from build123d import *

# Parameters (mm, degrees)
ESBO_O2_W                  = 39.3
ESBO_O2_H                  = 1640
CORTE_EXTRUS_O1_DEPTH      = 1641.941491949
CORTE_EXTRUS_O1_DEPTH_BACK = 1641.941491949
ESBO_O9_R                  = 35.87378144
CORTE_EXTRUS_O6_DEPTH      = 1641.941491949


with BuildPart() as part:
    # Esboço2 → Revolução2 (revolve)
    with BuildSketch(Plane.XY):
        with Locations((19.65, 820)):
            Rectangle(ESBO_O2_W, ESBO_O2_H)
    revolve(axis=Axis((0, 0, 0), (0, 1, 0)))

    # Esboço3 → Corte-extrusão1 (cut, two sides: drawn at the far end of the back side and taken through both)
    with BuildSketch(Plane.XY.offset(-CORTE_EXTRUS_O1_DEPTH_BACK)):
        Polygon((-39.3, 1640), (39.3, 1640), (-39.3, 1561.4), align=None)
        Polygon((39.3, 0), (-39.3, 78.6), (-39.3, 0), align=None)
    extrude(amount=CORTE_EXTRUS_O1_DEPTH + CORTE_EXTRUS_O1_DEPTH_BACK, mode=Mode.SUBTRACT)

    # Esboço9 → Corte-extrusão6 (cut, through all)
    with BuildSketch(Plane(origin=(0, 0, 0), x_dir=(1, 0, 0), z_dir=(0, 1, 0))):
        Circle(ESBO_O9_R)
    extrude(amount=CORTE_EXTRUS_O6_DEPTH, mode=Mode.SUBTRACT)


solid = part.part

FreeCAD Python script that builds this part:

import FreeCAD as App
import Part
import Sketcher

doc = App.newDocument("Part")
body = doc.addObject("PartDesign::Body", "Body")

# Sketch on XY plane
sketch1 = doc.addObject("Sketcher::SketchObject", "Sketch")
body.addObject(sketch1)
sketch1.AttachmentSupport = (doc.XY_Plane, [""])
sketch1.MapMode = "FlatFace"
sketch1.addGeometry([
    Part.LineSegment(App.Vector(0, 1640, 0), App.Vector(0, 0, 0)),
    Part.LineSegment(App.Vector(0, 0, 0), App.Vector(39.3, 0, 0)),
    Part.LineSegment(App.Vector(39.3, 0, 0), App.Vector(39.3, 1640, 0)),
    Part.LineSegment(App.Vector(39.3, 1640, 0), App.Vector(0, 1640, 0)),
], False)
sketch1.addConstraint([
    Sketcher.Constraint("Coincident", 0, 2, 1, 1),
    Sketcher.Constraint("Coincident", 1, 2, 2, 1),
    Sketcher.Constraint("Coincident", 2, 2, 3, 1),
    Sketcher.Constraint("Coincident", 3, 2, 0, 1),
    Sketcher.Constraint("Vertical", 0),
    Sketcher.Constraint("Horizontal", 1),
    Sketcher.Constraint("Vertical", 2),
    Sketcher.Constraint("Horizontal", 3),
    Sketcher.Constraint("Coincident", 0, 2, -1, 1),
    Sketcher.Constraint("DistanceY", 0, 2, 0, 1, 1640.0),
    Sketcher.Constraint("DistanceX", 1, 1, 1, 2, 39.3),
])
revolution = doc.addObject("PartDesign::Revolution", "Revolution")
body.addObject(revolution)
revolution.Profile = sketch1
revolution.ReferenceAxis = (sketch1, ["V_Axis"])
revolution.Angle = 360

# Sketch on XY plane
sketch2 = doc.addObject("Sketcher::SketchObject", "Sketch001")
body.addObject(sketch2)
sketch2.AttachmentSupport = (doc.XY_Plane, [""])
sketch2.MapMode = "FlatFace"
sketch2.addGeometry([
    Part.LineSegment(App.Vector(39.3, 1640, 0), App.Vector(-39.3, 1640, 0)),  # 0
    Part.LineSegment(App.Vector(-39.3, 1640, 0), App.Vector(-39.3, 1561.4, 0)),  # 1
    Part.LineSegment(App.Vector(-39.3, 1561.4, 0), App.Vector(39.3, 1640, 0)),  # 2
    Part.LineSegment(App.Vector(39.3, 0, 0), App.Vector(-39.3, 78.6, 0)),  # 3
    Part.LineSegment(App.Vector(-39.3, 78.6, 0), App.Vector(-39.3, 0, 0)),  # 4
    Part.LineSegment(App.Vector(-39.3, 0, 0), App.Vector(39.3, 0, 0)),  # 5
], False)
sketch2.addConstraint([
    Sketcher.Constraint("Coincident", 0, 2, 1, 1),
    Sketcher.Constraint("Coincident", 1, 2, 2, 1),
    Sketcher.Constraint("Coincident", 2, 2, 0, 1),
    Sketcher.Constraint("Coincident", 3, 2, 4, 1),
    Sketcher.Constraint("Coincident", 4, 2, 5, 1),
    Sketcher.Constraint("Coincident", 5, 2, 3, 1),
    Sketcher.Constraint("Horizontal", 0),
    Sketcher.Constraint("Vertical", 1),
    Sketcher.Constraint("Vertical", 4),
    Sketcher.Constraint("Horizontal", 5),
    Sketcher.Constraint("Symmetric", 4, 2, 5, 2, -1, 1),
    Sketcher.Constraint("Perpendicular", 2, 3),
    Sketcher.Constraint("Vertical", 1, 2, 3, 2),
    Sketcher.Constraint("Vertical", 2, 2, 5, 2),
    Sketcher.Constraint("Equal", 5, 1),
    Sketcher.Constraint("DistanceX", 0, 2, 0, 1, 78.6),
    Sketcher.Constraint("DistanceY", -1, 1, 0, 2, 1640.0),
])
pocket1 = doc.addObject("PartDesign::Pocket", "Pocket")
body.addObject(pocket1)
pocket1.Profile = sketch2
pocket1.Type = "ThroughAll"
pocket1.Midplane = True

# Sketch on XZ plane
sketch3 = doc.addObject("Sketcher::SketchObject", "Sketch002")
body.addObject(sketch3)
sketch3.AttachmentSupport = (doc.XZ_Plane, [""])
sketch3.MapMode = "FlatFace"
sketch3.addGeometry(Part.Circle(App.Vector(0, 0, 0), App.Vector(0, 0, 1), 35.873781), False)
sketch3.addConstraint([
    Sketcher.Constraint("Coincident", 0, 3, -1, 1),
    Sketcher.Constraint("Diameter", 0, 71.747563),
])
pocket2 = doc.addObject("PartDesign::Pocket", "Pocket001")
body.addObject(pocket2)
pocket2.Profile = sketch3
pocket2.Type = "ThroughAll"

doc.recompute()
